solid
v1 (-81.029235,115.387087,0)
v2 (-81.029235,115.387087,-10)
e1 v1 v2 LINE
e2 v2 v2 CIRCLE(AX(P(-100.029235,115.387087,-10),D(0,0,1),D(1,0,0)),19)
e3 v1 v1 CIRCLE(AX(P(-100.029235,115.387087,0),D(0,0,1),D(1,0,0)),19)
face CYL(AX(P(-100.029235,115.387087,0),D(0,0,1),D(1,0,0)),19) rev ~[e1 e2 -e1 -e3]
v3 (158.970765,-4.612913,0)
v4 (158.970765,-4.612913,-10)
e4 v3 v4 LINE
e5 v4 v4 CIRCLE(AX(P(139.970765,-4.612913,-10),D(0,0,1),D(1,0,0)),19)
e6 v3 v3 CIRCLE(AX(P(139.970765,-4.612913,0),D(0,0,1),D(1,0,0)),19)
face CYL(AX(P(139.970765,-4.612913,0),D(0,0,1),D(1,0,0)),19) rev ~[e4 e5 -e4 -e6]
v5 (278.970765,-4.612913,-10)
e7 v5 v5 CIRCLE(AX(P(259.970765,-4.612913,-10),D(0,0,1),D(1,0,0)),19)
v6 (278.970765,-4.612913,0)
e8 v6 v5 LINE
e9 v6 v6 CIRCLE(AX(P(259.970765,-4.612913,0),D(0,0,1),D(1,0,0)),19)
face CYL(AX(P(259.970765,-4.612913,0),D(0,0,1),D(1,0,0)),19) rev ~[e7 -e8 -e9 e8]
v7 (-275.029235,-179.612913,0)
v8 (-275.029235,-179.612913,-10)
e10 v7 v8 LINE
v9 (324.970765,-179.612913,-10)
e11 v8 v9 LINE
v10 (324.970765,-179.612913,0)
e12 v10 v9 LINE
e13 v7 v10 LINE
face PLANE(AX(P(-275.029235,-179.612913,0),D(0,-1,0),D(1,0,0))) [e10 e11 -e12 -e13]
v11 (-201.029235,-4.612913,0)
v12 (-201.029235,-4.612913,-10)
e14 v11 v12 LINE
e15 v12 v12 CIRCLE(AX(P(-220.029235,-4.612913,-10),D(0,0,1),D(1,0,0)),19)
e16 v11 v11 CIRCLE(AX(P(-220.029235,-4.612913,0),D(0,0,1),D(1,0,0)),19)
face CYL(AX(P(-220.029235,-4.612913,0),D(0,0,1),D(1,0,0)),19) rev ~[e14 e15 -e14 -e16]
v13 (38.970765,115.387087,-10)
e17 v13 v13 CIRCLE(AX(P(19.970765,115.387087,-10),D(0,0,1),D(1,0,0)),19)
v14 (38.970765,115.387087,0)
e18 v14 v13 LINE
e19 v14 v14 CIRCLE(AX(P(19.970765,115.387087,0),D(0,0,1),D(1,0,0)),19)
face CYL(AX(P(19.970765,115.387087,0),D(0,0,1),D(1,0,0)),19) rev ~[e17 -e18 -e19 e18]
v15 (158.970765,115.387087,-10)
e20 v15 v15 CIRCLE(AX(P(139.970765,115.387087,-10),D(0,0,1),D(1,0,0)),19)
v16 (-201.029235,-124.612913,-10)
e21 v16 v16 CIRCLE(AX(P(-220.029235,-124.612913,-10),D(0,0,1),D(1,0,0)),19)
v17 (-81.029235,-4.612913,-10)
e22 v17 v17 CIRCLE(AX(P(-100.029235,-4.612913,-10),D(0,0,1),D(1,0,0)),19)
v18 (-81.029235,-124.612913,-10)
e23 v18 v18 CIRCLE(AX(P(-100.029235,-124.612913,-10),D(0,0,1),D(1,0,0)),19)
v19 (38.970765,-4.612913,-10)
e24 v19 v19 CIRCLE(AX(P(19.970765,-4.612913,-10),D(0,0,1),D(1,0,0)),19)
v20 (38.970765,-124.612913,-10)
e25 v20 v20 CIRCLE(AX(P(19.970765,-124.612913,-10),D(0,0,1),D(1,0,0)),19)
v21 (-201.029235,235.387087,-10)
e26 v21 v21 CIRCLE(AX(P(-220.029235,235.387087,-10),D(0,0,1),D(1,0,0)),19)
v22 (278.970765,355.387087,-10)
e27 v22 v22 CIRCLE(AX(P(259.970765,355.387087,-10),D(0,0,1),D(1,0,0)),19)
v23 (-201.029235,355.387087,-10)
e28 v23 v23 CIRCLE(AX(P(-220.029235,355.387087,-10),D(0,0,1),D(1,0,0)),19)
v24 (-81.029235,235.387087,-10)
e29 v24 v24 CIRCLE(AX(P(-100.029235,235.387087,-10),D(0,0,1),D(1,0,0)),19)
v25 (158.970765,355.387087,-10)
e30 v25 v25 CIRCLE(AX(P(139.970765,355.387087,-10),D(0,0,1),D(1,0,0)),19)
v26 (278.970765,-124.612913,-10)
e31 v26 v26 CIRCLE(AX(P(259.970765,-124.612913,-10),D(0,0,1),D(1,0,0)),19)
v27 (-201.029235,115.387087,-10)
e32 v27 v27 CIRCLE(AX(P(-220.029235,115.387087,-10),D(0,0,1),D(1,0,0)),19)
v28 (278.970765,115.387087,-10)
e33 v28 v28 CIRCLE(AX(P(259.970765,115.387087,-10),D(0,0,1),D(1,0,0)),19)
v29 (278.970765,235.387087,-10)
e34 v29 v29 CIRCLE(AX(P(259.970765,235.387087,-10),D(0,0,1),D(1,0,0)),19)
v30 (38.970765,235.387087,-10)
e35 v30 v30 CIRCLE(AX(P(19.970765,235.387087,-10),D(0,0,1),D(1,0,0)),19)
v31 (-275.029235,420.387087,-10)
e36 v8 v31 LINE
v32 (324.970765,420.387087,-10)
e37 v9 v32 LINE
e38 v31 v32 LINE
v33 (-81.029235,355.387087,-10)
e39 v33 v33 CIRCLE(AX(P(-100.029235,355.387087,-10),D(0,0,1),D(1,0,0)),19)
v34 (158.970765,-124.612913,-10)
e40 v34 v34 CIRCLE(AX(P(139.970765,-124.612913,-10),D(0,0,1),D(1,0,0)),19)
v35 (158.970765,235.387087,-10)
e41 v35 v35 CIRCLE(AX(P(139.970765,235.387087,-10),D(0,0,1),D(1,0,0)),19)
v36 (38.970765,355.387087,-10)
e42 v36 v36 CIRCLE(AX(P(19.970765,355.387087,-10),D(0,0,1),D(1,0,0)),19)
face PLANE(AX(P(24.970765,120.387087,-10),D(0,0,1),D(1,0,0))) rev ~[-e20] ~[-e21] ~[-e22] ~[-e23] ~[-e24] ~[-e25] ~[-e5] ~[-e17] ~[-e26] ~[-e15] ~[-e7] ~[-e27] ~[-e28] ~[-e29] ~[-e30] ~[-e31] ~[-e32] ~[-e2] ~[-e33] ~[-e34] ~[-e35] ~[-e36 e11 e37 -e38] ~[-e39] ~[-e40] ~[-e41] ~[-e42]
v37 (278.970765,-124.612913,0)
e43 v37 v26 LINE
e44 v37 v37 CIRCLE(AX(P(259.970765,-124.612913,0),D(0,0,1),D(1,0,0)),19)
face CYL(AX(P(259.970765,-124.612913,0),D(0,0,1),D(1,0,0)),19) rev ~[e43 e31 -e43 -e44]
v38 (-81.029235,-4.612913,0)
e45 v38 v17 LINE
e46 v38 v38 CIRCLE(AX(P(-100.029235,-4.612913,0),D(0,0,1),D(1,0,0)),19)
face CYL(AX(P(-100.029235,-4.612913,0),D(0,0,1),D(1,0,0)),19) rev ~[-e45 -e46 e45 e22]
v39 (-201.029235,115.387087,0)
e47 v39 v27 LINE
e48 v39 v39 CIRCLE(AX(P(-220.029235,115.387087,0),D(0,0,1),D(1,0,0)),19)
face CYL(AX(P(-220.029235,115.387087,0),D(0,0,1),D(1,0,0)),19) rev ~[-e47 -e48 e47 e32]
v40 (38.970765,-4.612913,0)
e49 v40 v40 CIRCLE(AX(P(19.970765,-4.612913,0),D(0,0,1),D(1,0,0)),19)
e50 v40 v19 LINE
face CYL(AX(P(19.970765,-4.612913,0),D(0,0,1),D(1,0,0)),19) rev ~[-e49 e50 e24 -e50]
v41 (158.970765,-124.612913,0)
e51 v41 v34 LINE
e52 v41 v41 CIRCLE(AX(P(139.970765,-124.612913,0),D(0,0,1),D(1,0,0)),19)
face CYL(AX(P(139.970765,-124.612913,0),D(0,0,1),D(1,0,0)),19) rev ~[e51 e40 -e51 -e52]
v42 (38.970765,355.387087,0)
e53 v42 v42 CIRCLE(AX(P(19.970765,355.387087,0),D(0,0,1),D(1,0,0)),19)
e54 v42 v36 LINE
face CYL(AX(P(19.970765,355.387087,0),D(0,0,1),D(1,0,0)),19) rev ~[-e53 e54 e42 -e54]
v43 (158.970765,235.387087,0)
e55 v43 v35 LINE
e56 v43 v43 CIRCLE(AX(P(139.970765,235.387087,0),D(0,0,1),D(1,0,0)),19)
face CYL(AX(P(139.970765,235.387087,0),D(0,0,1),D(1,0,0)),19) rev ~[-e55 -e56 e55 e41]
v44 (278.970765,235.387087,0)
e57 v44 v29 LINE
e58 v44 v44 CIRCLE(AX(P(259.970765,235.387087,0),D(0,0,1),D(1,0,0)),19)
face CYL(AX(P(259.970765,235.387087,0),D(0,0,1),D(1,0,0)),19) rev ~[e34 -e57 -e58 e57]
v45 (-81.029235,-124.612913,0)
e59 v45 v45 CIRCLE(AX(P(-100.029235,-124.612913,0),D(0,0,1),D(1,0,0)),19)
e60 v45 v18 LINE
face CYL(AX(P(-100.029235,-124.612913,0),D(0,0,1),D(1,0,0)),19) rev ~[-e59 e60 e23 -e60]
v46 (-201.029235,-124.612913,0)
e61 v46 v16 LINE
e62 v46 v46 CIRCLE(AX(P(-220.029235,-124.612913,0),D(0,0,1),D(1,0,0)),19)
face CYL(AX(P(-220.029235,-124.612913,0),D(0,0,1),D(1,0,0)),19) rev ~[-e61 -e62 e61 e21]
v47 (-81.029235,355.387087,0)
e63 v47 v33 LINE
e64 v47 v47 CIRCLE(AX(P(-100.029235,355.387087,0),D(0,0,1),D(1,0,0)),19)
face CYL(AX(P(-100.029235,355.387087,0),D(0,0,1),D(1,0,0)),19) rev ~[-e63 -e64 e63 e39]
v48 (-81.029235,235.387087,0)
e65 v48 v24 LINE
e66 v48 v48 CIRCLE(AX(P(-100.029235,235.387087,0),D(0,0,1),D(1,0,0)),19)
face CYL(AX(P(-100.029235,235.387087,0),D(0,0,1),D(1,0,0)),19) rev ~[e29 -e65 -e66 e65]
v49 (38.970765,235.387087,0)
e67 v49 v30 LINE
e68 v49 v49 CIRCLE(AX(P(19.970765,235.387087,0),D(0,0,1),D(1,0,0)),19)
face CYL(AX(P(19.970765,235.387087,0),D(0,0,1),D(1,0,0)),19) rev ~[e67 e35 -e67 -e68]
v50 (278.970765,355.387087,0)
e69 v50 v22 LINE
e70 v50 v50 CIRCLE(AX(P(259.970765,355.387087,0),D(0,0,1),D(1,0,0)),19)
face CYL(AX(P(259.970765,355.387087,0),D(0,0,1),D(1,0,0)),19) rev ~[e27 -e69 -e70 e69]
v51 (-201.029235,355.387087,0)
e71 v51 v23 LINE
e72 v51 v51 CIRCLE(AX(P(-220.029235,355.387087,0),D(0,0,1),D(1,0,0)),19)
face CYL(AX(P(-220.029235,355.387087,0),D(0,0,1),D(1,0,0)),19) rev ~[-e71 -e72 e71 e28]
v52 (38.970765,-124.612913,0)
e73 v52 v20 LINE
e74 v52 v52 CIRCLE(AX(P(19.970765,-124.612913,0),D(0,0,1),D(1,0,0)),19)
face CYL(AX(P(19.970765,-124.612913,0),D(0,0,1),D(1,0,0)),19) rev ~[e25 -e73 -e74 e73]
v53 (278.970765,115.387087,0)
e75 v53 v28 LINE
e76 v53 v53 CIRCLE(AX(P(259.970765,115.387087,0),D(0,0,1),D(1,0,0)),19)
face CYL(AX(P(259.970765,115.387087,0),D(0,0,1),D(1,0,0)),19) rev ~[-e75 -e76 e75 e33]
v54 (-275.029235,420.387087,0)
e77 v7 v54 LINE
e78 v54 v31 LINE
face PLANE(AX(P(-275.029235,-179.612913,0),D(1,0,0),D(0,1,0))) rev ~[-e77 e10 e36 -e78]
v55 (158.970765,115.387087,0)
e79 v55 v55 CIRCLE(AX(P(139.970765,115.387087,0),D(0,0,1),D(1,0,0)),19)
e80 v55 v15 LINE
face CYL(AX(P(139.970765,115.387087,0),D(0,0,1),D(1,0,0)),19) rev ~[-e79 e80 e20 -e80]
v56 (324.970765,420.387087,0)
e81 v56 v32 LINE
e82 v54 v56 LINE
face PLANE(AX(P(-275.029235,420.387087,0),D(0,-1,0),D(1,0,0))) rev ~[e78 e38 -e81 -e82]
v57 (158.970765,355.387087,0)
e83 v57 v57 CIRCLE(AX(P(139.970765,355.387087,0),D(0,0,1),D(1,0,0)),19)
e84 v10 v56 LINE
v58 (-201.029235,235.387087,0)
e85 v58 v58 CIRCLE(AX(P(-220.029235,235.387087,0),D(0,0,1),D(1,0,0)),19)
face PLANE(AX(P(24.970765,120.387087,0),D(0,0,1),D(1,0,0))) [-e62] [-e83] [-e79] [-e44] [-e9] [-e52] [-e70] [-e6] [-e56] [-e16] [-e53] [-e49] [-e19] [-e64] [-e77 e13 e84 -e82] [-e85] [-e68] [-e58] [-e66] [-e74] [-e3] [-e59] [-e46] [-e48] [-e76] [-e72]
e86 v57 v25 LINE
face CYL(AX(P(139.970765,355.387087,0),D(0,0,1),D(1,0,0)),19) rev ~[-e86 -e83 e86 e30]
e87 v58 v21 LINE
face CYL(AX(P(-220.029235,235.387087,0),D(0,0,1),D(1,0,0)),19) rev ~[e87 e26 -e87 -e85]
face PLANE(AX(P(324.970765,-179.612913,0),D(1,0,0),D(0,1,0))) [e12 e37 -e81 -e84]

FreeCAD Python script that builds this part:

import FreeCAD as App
import Part
import Sketcher
Q = App.Units.Quantity

doc = App.newDocument("Part")
params = doc.addObject("Spreadsheet::Sheet", "Params")
for row, (alias, value) in enumerate([
    ("sketch1_diameter", "38 mm"),
    ("sketch1_width", "600 mm"),
    ("pad1_length", "10 mm"),
], start=1):
    params.set(f"A{row}", alias)
    params.set(f"B{row}", "=" + value)
    params.setAlias(f"B{row}", alias)

body = doc.addObject("PartDesign::Body", "Body")

sketch1 = body.newObject("Sketcher::SketchObject", "Sketch")
sketch1.AttachmentSupport = (doc.getObject("XY_Plane"), [""])
sketch1.MapMode = "FlatFace"
sketch1.addGeometry([
    Part.LineSegment(App.Vector(-275, 420, 0), App.Vector(-275, -180, 0)),
    Part.LineSegment(App.Vector(-275, -180, 0), App.Vector(325, -180, 0)),
    Part.LineSegment(App.Vector(325, -180, 0), App.Vector(325, 420, 0)),
    Part.LineSegment(App.Vector(325, 420, 0), App.Vector(-275, 420, 0)),
    Part.Circle(App.Vector(-220, -125, 0), App.Vector(0, 0, 1), 19),
    Part.Circle(App.Vector(-100, -125, 0), App.Vector(0, 0, 1), 19),
    Part.Circle(App.Vector(-220, -5, 0), App.Vector(0, 0, 1), 19),
    Part.Circle(App.Vector(-100, -5, 0), App.Vector(0, 0, 1), 19),
    Part.Circle(App.Vector(20, -125, 0), App.Vector(0, 0, 1), 19),
    Part.Circle(App.Vector(140, -125, 0), App.Vector(0, 0, 1), 19),
    Part.Circle(App.Vector(260, -125, 0), App.Vector(0, 0, 1), 19),
    Part.Circle(App.Vector(20, -5, 0), App.Vector(0, 0, 1), 19),
    Part.Circle(App.Vector(140, -5, 0), App.Vector(0, 0, 1), 19),
    Part.Circle(App.Vector(260, -5, 0), App.Vector(0, 0, 1), 19),
    Part.Circle(App.Vector(-220, 115, 0), App.Vector(0, 0, 1), 19),
    Part.Circle(App.Vector(-220, 235, 0), App.Vector(0, 0, 1), 19),
    Part.Circle(App.Vector(-100, 115, 0), App.Vector(0, 0, 1), 19),
    Part.Circle(App.Vector(-100, 235, 0), App.Vector(0, 0, 1), 19),
    Part.Circle(App.Vector(-220, 355, 0), App.Vector(0, 0, 1), 19),
    Part.Circle(App.Vector(-100, 355, 0), App.Vector(0, 0, 1), 19),
    Part.Circle(App.Vector(20, 115, 0), App.Vector(0, 0, 1), 19),
    Part.Circle(App.Vector(140, 115, 0), App.Vector(0, 0, 1), 19),
    Part.Circle(App.Vector(20, 235, 0), App.Vector(0, 0, 1), 19),
    Part.Circle(App.Vector(140, 235, 0), App.Vector(0, 0, 1), 19),
    Part.Circle(App.Vector(260, 115, 0), App.Vector(0, 0, 1), 19),
    Part.Circle(App.Vector(260, 235, 0), App.Vector(0, 0, 1), 19),
    Part.Circle(App.Vector(20, 355, 0), App.Vector(0, 0, 1), 19),
    Part.Circle(App.Vector(140, 355, 0), App.Vector(0, 0, 1), 19),
    Part.Circle(App.Vector(260, 355, 0), App.Vector(0, 0, 1), 19),
], False)
sketch1.addConstraint([
    Sketcher.Constraint("Coincident", 0, 2, 1, 1),
    Sketcher.Constraint("Coincident", 1, 2, 2, 1),
    Sketcher.Constraint("Coincident", 2, 2, 3, 1),
    Sketcher.Constraint("Coincident", 3, 2, 0, 1),
    Sketcher.Constraint("Vertical", 0),
    Sketcher.Constraint("Horizontal", 1),
    Sketcher.Constraint("Vertical", 2),
    Sketcher.Constraint("Horizontal", 3),
    Sketcher.Constraint("Equal", 4, 5),
    Sketcher.Constraint("Equal", 5, 6),
    Sketcher.Constraint("Equal", 6, 7),
    Sketcher.Constraint("Equal", 7, 8),
    Sketcher.Constraint("Equal", 8, 9),
    Sketcher.Constraint("Equal", 9, 10),
    Sketcher.Constraint("Equal", 10, 11),
    Sketcher.Constraint("Equal", 11, 12),
    Sketcher.Constraint("Equal", 12, 13),
    Sketcher.Constraint("Equal", 13, 14),
    Sketcher.Constraint("Equal", 14, 15),
    Sketcher.Constraint("Equal", 15, 16),
    Sketcher.Constraint("Equal", 16, 17),
    Sketcher.Constraint("Equal", 17, 18),
    Sketcher.Constraint("Equal", 18, 19),
    Sketcher.Constraint("Equal", 19, 20),
    Sketcher.Constraint("Equal", 20, 21),
    Sketcher.Constraint("Equal", 21, 22),
    Sketcher.Constraint("Equal", 22, 23),
    Sketcher.Constraint("Equal", 23, 24),
    Sketcher.Constraint("Equal", 24, 25),
    Sketcher.Constraint("Equal", 25, 26),
    Sketcher.Constraint("Equal", 26, 27),
    Sketcher.Constraint("Equal", 27, 28),
    Sketcher.Constraint("Horizontal", 4, 3, 5, 3),
    Sketcher.Constraint("Horizontal", 6, 3, 7, 3),
    Sketcher.Constraint("Horizontal", 5, 3, 8, 3),
    Sketcher.Constraint("Horizontal", 8, 3, 9, 3),
    Sketcher.Constraint("Horizontal", 9, 3, 10, 3),
    Sketcher.Constraint("Horizontal", 7, 3, 11, 3),
    Sketcher.Constraint("Horizontal", 11, 3, 12, 3),
    Sketcher.Constraint("Horizontal", 12, 3, 13, 3),
    Sketcher.Constraint("Horizontal", 14, 3, 16, 3),
    Sketcher.Constraint("Horizontal", 15, 3, 17, 3),
    Sketcher.Constraint("Horizontal", 18, 3, 19, 3),
    Sketcher.Constraint("Horizontal", 16, 3, 20, 3),
    Sketcher.Constraint("Horizontal", 20, 3, 21, 3),
    Sketcher.Constraint("Horizontal", 17, 3, 22, 3),
    Sketcher.Constraint("Horizontal", 22, 3, 23, 3),
    Sketcher.Constraint("Horizontal", 21, 3, 24, 3),
    Sketcher.Constraint("Horizontal", 23, 3, 25, 3),
    Sketcher.Constraint("Horizontal", 19, 3, 26, 3),
    Sketcher.Constraint("Horizontal", 26, 3, 27, 3),
    Sketcher.Constraint("Horizontal", 27, 3, 28, 3),
    Sketcher.Constraint("Vertical", 4, 3, 6, 3),
    Sketcher.Constraint("Vertical", 5, 3, 7, 3),
    Sketcher.Constraint("Vertical", 8, 3, 11, 3),
    Sketcher.Constraint("Vertical", 9, 3, 12, 3),
    Sketcher.Constraint("Vertical", 10, 3, 13, 3),
    Sketcher.Constraint("Vertical", 6, 3, 14, 3),
    Sketcher.Constraint("Vertical", 14, 3, 15, 3),
    Sketcher.Constraint("Vertical", 7, 3, 16, 3),
    Sketcher.Constraint("Vertical", 16, 3, 17, 3),
    Sketcher.Constraint("Vertical", 15, 3, 18, 3),
    Sketcher.Constraint("Vertical", 17, 3, 19, 3),
    Sketcher.Constraint("Vertical", 11, 3, 20, 3),
    Sketcher.Constraint("Vertical", 12, 3, 21, 3),
    Sketcher.Constraint("Vertical", 20, 3, 22, 3),
    Sketcher.Constraint("Vertical", 21, 3, 23, 3),
    Sketcher.Constraint("Vertical", 13, 3, 24, 3),
    Sketcher.Constraint("Vertical", 24, 3, 25, 3),
    Sketcher.Constraint("Vertical", 22, 3, 26, 3),
    Sketcher.Constraint("Vertical", 23, 3, 27, 3),
    Sketcher.Constraint("Vertical", 25, 3, 28, 3),
    Sketcher.Constraint("Equal", 3, 0),
    Sketcher.Constraint("Diameter", 4, Q("38 mm")),
    Sketcher.Constraint("DistanceX", 1, 1, 1, 2, Q("600 mm")),
    Sketcher.Constraint("DistanceX", 4, 3, 5, 3, Q("120 mm")),
    Sketcher.Constraint("DistanceY", 4, 3, 6, 3, Q("120 mm")),
    Sketcher.Constraint("DistanceX", 5, 3, 8, 3, Q("120 mm")),
    Sketcher.Constraint("DistanceX", 8, 3, 9, 3, Q("120 mm")),
    Sketcher.Constraint("DistanceX", 9, 3, 10, 3, Q("120 mm")),
    Sketcher.Constraint("DistanceY", 6, 3, 14, 3, Q("120 mm")),
    Sketcher.Constraint("DistanceY", 14, 3, 15, 3, Q("120 mm")),
    Sketcher.Constraint("DistanceY", 15, 3, 18, 3, Q("120 mm")),
    Sketcher.Constraint("DistanceX", 0, 2, 4, 3, Q("55 mm")),
    Sketcher.Constraint("DistanceY", 0, 2, 4, 3, Q("55 mm")),
    Sketcher.Constraint("DistanceX", 4, 3, -1, 1, Q("220.029235 mm")),
    Sketcher.Constraint("DistanceY", 4, 3, -1, 1, Q("124.612913 mm")),
])
sketch1.setExpression("Constraints[73]", "Params.sketch1_diameter")
sketch1.setExpression("Constraints[74]", "Params.sketch1_width")
pad1 = body.newObject("PartDesign::Pad", "Pad")
pad1.Profile = sketch1
pad1.setExpression("Length", "Params.pad1_length")
pad1.Reversed = True

doc.recompute()
